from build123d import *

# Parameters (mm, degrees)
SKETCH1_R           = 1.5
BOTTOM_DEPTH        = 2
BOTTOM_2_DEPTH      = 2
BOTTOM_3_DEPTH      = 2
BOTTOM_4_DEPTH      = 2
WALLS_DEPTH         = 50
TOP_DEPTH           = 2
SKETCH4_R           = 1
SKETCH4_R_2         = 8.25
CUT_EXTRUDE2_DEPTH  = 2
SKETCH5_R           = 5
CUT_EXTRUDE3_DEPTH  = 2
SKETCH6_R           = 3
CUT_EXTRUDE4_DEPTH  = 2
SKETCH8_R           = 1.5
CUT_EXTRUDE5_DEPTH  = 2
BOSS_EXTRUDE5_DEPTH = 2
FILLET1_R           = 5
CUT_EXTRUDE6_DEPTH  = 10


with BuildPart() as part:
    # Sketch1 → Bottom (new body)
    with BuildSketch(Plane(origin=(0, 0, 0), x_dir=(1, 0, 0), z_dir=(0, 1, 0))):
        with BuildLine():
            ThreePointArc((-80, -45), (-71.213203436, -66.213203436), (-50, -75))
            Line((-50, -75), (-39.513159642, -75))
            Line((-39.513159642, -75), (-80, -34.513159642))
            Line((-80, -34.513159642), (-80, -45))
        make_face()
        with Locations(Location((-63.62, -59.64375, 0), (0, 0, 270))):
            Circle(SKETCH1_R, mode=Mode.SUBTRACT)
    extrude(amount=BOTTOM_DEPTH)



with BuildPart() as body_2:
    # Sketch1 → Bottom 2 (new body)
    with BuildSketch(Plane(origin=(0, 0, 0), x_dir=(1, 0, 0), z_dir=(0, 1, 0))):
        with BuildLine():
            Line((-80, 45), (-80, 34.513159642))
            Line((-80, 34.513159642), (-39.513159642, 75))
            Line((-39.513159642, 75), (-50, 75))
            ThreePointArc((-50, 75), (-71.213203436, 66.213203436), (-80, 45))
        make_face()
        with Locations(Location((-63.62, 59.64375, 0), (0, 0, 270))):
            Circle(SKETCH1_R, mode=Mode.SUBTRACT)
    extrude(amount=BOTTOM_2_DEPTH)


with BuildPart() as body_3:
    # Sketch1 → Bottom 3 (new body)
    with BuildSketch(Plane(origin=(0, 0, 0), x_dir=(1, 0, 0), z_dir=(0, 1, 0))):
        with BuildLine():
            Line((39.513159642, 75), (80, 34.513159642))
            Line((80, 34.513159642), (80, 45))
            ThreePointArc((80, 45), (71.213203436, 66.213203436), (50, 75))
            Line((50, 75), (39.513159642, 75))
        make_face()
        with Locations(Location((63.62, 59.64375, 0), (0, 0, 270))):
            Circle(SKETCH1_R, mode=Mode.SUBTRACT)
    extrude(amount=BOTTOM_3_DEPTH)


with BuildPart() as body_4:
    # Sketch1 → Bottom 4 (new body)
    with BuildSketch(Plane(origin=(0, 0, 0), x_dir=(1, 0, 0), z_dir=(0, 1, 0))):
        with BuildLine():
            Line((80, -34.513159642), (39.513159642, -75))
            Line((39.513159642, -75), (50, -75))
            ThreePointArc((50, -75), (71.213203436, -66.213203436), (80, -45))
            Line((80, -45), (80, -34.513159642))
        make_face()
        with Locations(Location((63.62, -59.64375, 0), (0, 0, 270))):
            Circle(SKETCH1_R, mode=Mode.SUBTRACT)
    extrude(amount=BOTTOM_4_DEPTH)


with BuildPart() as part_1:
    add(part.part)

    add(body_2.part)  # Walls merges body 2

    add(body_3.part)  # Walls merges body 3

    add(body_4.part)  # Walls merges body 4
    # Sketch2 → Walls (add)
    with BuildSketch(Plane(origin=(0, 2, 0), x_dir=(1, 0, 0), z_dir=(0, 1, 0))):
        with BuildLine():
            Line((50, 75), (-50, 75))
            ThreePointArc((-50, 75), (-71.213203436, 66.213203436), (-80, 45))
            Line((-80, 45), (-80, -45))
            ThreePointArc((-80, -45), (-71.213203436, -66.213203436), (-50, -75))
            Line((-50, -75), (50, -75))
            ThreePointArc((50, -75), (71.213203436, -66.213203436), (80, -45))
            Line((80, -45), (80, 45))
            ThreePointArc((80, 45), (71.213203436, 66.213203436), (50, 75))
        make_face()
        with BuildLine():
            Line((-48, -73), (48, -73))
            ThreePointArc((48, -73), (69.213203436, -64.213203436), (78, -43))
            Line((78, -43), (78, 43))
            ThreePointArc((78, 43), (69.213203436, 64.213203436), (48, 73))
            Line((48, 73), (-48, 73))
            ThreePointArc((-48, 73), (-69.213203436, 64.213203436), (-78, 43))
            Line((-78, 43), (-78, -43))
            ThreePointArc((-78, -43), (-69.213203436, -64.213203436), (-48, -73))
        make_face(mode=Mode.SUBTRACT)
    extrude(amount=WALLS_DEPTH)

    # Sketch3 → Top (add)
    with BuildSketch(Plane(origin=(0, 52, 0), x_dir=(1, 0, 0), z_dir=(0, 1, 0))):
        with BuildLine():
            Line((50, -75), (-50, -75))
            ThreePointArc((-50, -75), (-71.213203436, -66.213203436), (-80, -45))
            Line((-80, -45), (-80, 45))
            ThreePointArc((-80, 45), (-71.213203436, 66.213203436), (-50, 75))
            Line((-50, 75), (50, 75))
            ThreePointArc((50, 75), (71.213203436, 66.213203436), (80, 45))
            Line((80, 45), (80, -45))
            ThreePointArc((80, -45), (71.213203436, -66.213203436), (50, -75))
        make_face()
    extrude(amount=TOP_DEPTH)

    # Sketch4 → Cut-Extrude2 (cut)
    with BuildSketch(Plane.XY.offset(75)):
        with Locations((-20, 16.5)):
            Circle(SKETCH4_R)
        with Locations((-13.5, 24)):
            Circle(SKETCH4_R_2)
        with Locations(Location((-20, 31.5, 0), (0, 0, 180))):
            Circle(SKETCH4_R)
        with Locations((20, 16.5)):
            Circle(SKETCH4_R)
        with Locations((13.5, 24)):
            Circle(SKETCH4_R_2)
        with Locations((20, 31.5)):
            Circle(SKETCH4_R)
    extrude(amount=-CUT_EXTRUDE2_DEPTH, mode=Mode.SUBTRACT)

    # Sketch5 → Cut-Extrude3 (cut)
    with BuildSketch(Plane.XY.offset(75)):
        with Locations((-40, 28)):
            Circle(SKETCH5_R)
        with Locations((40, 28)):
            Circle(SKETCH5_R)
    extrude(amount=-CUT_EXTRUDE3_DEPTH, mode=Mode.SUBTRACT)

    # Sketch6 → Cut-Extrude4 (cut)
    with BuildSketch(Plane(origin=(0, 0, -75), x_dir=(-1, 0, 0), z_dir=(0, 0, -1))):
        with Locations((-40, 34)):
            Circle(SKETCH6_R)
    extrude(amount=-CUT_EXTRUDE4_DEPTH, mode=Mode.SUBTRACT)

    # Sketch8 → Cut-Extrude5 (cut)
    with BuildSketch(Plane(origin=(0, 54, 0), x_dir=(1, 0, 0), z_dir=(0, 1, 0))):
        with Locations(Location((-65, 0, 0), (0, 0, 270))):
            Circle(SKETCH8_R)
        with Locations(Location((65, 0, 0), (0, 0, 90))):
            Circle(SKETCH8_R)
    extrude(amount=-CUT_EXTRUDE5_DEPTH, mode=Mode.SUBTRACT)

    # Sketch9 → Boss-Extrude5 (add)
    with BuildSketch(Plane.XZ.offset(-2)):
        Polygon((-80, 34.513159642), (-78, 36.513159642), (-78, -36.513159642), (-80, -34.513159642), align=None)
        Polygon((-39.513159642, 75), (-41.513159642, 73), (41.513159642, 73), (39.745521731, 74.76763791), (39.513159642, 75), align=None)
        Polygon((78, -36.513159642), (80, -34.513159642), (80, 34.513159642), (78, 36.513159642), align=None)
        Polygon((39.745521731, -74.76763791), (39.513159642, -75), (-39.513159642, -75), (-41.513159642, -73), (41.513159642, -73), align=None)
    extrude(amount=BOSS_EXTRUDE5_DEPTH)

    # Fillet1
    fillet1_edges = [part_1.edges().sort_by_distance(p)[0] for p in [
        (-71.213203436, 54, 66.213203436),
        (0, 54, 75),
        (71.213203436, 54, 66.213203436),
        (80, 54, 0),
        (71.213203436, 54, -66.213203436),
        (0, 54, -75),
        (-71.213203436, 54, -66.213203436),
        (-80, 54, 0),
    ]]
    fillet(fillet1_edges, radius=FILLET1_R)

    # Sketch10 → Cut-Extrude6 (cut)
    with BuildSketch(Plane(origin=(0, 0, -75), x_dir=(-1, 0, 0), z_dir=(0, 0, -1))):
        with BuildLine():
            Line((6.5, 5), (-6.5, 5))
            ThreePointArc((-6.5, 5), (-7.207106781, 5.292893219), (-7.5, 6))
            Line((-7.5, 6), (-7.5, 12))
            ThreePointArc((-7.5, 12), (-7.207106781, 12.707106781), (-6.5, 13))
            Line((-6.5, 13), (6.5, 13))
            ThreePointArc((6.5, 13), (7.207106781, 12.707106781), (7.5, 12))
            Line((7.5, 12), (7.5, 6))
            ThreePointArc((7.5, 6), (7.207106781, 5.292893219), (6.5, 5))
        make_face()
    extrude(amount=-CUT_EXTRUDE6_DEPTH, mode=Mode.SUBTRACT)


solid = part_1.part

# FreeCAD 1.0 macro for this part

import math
import FreeCAD as App
import Part
import Sketcher

V = App.Vector
Q = App.Units.Quantity


def edges_at(feature, points):
    """Names of the edges that pass closest to the given points."""
    edges = feature.Shape.Edges
    near = lambda p: min(range(len(edges)), key=lambda i: edges[i].distToShape(Part.Vertex(*p))[0])
    return sorted({f"Edge{near(p) + 1}" for p in points})

doc = App.newDocument("Part")
body = doc.addObject("PartDesign::Body", "Body")

sketch1 = body.newObject("Sketcher::SketchObject", "Sketch")
sketch1.AttachmentSupport = (doc.getObject("XZ_Plane"), [""])
sketch1.MapMode = "FlatFace"
sketch1.addGeometry([
    Part.ArcOfCircle(Part.Circle(V(-50, 45, 0), V(0, 0, 1), 30), math.radians(90), math.radians(180)),
    Part.LineSegment(V(-50, 75, 0), V(-39.51316, 75, 0)),
    Part.LineSegment(V(-39.51316, 75, 0), V(-80, 34.51316, 0)),
    Part.LineSegment(V(-80, 34.51316, 0), V(-80, 45, 0)),
    Part.Circle(V(-63.62, 59.64375, 0), V(0, 0, 1), 1.5),
], False)
sketch1.addConstraint([
    Sketcher.Constraint("Tangent", 0, 1, 1, 1),
    Sketcher.Constraint("Coincident", 1, 2, 2, 1),
    Sketcher.Constraint("Coincident", 2, 2, 3, 1),
    Sketcher.Constraint("Tangent", 3, 2, 0, 2),
    Sketcher.Constraint("Horizontal", 1),
    Sketcher.Constraint("Vertical", 3),
    Sketcher.Constraint("Equal", 1, 3),
    Sketcher.Constraint("Diameter", 4, Q("3 mm")),
    Sketcher.Constraint("Radius", 0, Q("30 mm")),
    Sketcher.Constraint("DistanceX", 0, 3, -1, 1, Q("50 mm")),
    Sketcher.Constraint("DistanceY", -1, 1, 0, 3, Q("45 mm")),
    Sketcher.Constraint("DistanceX", 4, 3, -1, 1, Q("63.62 mm")),
    Sketcher.Constraint("DistanceX", 1, 1, 1, 2, Q("10.48684 mm")),
    Sketcher.Constraint("DistanceY", -1, 1, 4, 3, Q("59.64375 mm")),
])
pad1 = body.newObject("PartDesign::Pad", "Pad")
pad1.Profile = sketch1
pad1.Length = 2
pad1.Reversed = True
body2 = doc.addObject("PartDesign::Body", "Body001")

sketch2 = body2.newObject("Sketcher::SketchObject", "Sketch001")
sketch2.AttachmentSupport = (doc.getObject("XZ_Plane001"), [""])
sketch2.MapMode = "FlatFace"
sketch2.addGeometry([
    Part.LineSegment(V(-80, -45, 0), V(-80, -34.51316, 0)),
    Part.LineSegment(V(-80, -34.51316, 0), V(-39.51316, -75, 0)),
    Part.LineSegment(V(-39.51316, -75, 0), V(-50, -75, 0)),
    Part.ArcOfCircle(Part.Circle(V(-50, -45, 0), V(0, 0, 1), 30), math.radians(180), math.radians(270)),
    Part.Circle(V(-63.62, -59.64375, 0), V(0, 0, 1), 1.5),
], False)
sketch2.addConstraint([
    Sketcher.Constraint("Coincident", 0, 2, 1, 1),
    Sketcher.Constraint("Coincident", 1, 2, 2, 1),
    Sketcher.Constraint("Tangent", 2, 2, 3, 2),
    Sketcher.Constraint("Tangent", 3, 1, 0, 1),
    Sketcher.Constraint("Vertical", 0),
    Sketcher.Constraint("Horizontal", 2),
    Sketcher.Constraint("Equal", 2, 0),
    Sketcher.Constraint("Diameter", 4, Q("3 mm")),
    Sketcher.Constraint("Radius", 3, Q("30 mm")),
    Sketcher.Constraint("DistanceX", 3, 3, -1, 1, Q("50 mm")),
    Sketcher.Constraint("DistanceY", 3, 3, -1, 1, Q("45 mm")),
    Sketcher.Constraint("DistanceX", 4, 3, -1, 1, Q("63.62 mm")),
    Sketcher.Constraint("DistanceX", 2, 2, 2, 1, Q("10.48684 mm")),
    Sketcher.Constraint("DistanceY", 4, 3, -1, 1, Q("59.64375 mm")),
])
pad2 = body2.newObject("PartDesign::Pad", "Pad001")
pad2.Profile = sketch2
pad2.Length = 2
pad2.Reversed = True
body3 = doc.addObject("PartDesign::Body", "Body002")

sketch3 = body3.newObject("Sketcher::SketchObject", "Sketch002")
sketch3.AttachmentSupport = (doc.getObject("XZ_Plane002"), [""])
sketch3.MapMode = "FlatFace"
sketch3.addGeometry([
    Part.LineSegment(V(39.51316, -75, 0), V(80, -34.51316, 0)),
    Part.LineSegment(V(80, -34.51316, 0), V(80, -45, 0)),
    Part.ArcOfCircle(Part.Circle(V(50, -45, 0), V(0, 0, 1), 30), math.radians(-90), math.radians(0)),
    Part.LineSegment(V(50, -75, 0), V(39.51316, -75, 0)),
    Part.Circle(V(63.62, -59.64375, 0), V(0, 0, 1), 1.5),
], False)
sketch3.addConstraint([
    Sketcher.Constraint("Coincident", 0, 2, 1, 1),
    Sketcher.Constraint("Tangent", 1, 2, 2, 2),
    Sketcher.Constraint("Tangent", 2, 1, 3, 1),
    Sketcher.Constraint("Coincident", 3, 2, 0, 1),
    Sketcher.Constraint("Vertical", 1),
    Sketcher.Constraint("Horizontal", 3),
    Sketcher.Constraint("Equal", 3, 1),
    Sketcher.Constraint("Diameter", 4, Q("3 mm")),
    Sketcher.Constraint("Radius", 2, Q("30 mm")),
    Sketcher.Constraint("DistanceX", -1, 1, 2, 3, Q("50 mm")),
    Sketcher.Constraint("DistanceY", 2, 3, -1, 1, Q("45 mm")),
    Sketcher.Constraint("DistanceX", -1, 1, 4, 3, Q("63.62 mm")),
    Sketcher.Constraint("DistanceX", 3, 2, 3, 1, Q("10.48684 mm")),
    Sketcher.Constraint("DistanceY", 4, 3, -1, 1, Q("59.64375 mm")),
])
pad3 = body3.newObject("PartDesign::Pad", "Pad002")
pad3.Profile = sketch3
pad3.Length = 2
pad3.Reversed = True
body4 = doc.addObject("PartDesign::Body", "Body003")

sketch4 = body4.newObject("Sketcher::SketchObject", "Sketch003")
sketch4.AttachmentSupport = (doc.getObject("XZ_Plane003"), [""])
sketch4.MapMode = "FlatFace"
sketch4.addGeometry([
    Part.LineSegment(V(80, 34.51316, 0), V(39.51316, 75, 0)),
    Part.LineSegment(V(39.51316, 75, 0), V(50, 75, 0)),
    Part.ArcOfCircle(Part.Circle(V(50, 45, 0), V(0, 0, 1), 30), math.radians(0), math.radians(90)),
    Part.LineSegment(V(80, 45, 0), V(80, 34.51316, 0)),
    Part.Circle(V(63.62, 59.64375, 0), V(0, 0, 1), 1.5),
], False)
sketch4.addConstraint([
    Sketcher.Constraint("Coincident", 0, 2, 1, 1),
    Sketcher.Constraint("Tangent", 1, 2, 2, 2),
    Sketcher.Constraint("Tangent", 2, 1, 3, 1),
    Sketcher.Constraint("Coincident", 3, 2, 0, 1),
    Sketcher.Constraint("Horizontal", 1),
    Sketcher.Constraint("Vertical", 3),
    Sketcher.Constraint("Equal", 1, 3),
    Sketcher.Constraint("Diameter", 4, Q("3 mm")),
    Sketcher.Constraint("Radius", 2, Q("30 mm")),
    Sketcher.Constraint("DistanceX", -1, 1, 2, 3, Q("50 mm")),
    Sketcher.Constraint("DistanceY", -1, 1, 2, 3, Q("45 mm")),
    Sketcher.Constraint("DistanceX", -1, 1, 4, 3, Q("63.62 mm")),
    Sketcher.Constraint("DistanceX", 1, 1, 1, 2, Q("10.48684 mm")),
    Sketcher.Constraint("DistanceY", -1, 1, 4, 3, Q("59.64375 mm")),
])
pad4 = body4.newObject("PartDesign::Pad", "Pad003")
pad4.Profile = sketch4
pad4.Length = 2
pad4.Reversed = True
body.AllowCompound = True
doc.recompute()

boolean = body.newObject("PartDesign::Boolean", "Boolean")
boolean.Type = "Fuse"
boolean.addObjects([body2])
doc.recompute()

boolean2 = body.newObject("PartDesign::Boolean", "Boolean001")
boolean2.Type = "Fuse"
boolean2.addObjects([body3])
doc.recompute()

boolean3 = body.newObject("PartDesign::Boolean", "Boolean002")
boolean3.Type = "Fuse"
boolean3.addObjects([body4])

sketch5 = body.newObject("Sketcher::SketchObject", "Sketch004")
sketch5.AttachmentSupport = (doc.getObject("XZ_Plane"), [""])
sketch5.MapMode = "FlatFace"
sketch5.AttachmentOffset = App.Placement(V(0, 0, -2), App.Rotation())
sketch5.addGeometry([
    Part.LineSegment(V(50, -75, 0), V(-50, -75, 0)),
    Part.ArcOfCircle(Part.Circle(V(-50, -45, 0), V(0, 0, 1), 30), math.radians(180), math.radians(270)),
    Part.LineSegment(V(-80, -45, 0), V(-80, 45, 0)),
    Part.ArcOfCircle(Part.Circle(V(-50, 45, 0), V(0, 0, 1), 30), math.radians(90), math.radians(180)),
    Part.LineSegment(V(-50, 75, 0), V(50, 75, 0)),
    Part.ArcOfCircle(Part.Circle(V(50, 45, 0), V(0, 0, 1), 30), math.radians(0), math.radians(90)),
    Part.LineSegment(V(80, 45, 0), V(80, -45, 0)),
    Part.ArcOfCircle(Part.Circle(V(50, -45, 0), V(0, 0, 1), 30), math.radians(-90), math.radians(0)),
    Part.LineSegment(V(48, 73, 0), V(-48, 73, 0)),
    Part.ArcOfCircle(Part.Circle(V(-48, 43, 0), V(0, 0, 1), 30), math.radians(90), math.radians(180)),
    Part.LineSegment(V(-78, 43, 0), V(-78, -43, 0)),
    Part.ArcOfCircle(Part.Circle(V(-48, -43, 0), V(0, 0, 1), 30), math.radians(180), math.radians(270)),
    Part.LineSegment(V(-48, -73, 0), V(48, -73, 0)),
    Part.ArcOfCircle(Part.Circle(V(48, -43, 0), V(0, 0, 1), 30), math.radians(-90), math.radians(0)),
    Part.LineSegment(V(78, -43, 0), V(78, 43, 0)),
    Part.ArcOfCircle(Part.Circle(V(48, 43, 0), V(0, 0, 1), 30), math.radians(0), math.radians(90)),
], False)
sketch5.addConstraint([
    Sketcher.Constraint("Tangent", 0, 2, 1, 2),
    Sketcher.Constraint("Tangent", 1, 1, 2, 1),
    Sketcher.Constraint("Tangent", 2, 2, 3, 2),
    Sketcher.Constraint("Tangent", 3, 1, 4, 1),
    Sketcher.Constraint("Tangent", 4, 2, 5, 2),
    Sketcher.Constraint("Tangent", 5, 1, 6, 1),
    Sketcher.Constraint("Tangent", 6, 2, 7, 2),
    Sketcher.Constraint("Tangent", 7, 1, 0, 1),
    Sketcher.Constraint("Tangent", 8, 2, 9, 1),
    Sketcher.Constraint("Tangent", 9, 2, 10, 1),
    Sketcher.Constraint("Tangent", 10, 2, 11, 1),
    Sketcher.Constraint("Tangent", 11, 2, 12, 1),
    Sketcher.Constraint("Tangent", 12, 2, 13, 1),
    Sketcher.Constraint("Tangent", 13, 2, 14, 1),
    Sketcher.Constraint("Tangent", 14, 2, 15, 1),
    Sketcher.Constraint("Tangent", 15, 2, 8, 1),
    Sketcher.Constraint("Horizontal", 0),
    Sketcher.Constraint("Vertical", 2),
    Sketcher.Constraint("Horizontal", 4),
    Sketcher.Constraint("Vertical", 6),
    Sketcher.Constraint("Horizontal", 8),
    Sketcher.Constraint("Vertical", 10),
    Sketcher.Constraint("Horizontal", 12),
    Sketcher.Constraint("Vertical", 14),
    Sketcher.Constraint("Equal", 1, 3),
    Sketcher.Constraint("Equal", 3, 5),
    Sketcher.Constraint("Equal", 5, 7),
    Sketcher.Constraint("Equal", 7, 9),
    Sketcher.Constraint("Equal", 9, 11),
    Sketcher.Constraint("Equal", 11, 13),
    Sketcher.Constraint("Equal", 13, 15),
    Sketcher.Constraint("Symmetric", 1, 3, 5, 3, -1, 1),
    Sketcher.Constraint("Symmetric", 9, 3, 13, 3, -1, 1),
    Sketcher.Constraint("Radius", 1, Q("30 mm")),
    Sketcher.Constraint("DistanceX", 0, 2, 0, 1, Q("100 mm")),
    Sketcher.Constraint("DistanceX", 8, 2, 8, 1, Q("96 mm")),
    Sketcher.Constraint("DistanceY", 2, 1, 2, 2, Q("90 mm")),
    Sketcher.Constraint("DistanceY", 10, 2, 10, 1, Q("86 mm")),
])
pad5 = body.newObject("PartDesign::Pad", "Pad004")
pad5.Profile = sketch5
pad5.Length = 50
pad5.Reversed = True

sketch6 = body.newObject("Sketcher::SketchObject", "Sketch005")
sketch6.AttachmentSupport = (doc.getObject("XZ_Plane"), [""])
sketch6.MapMode = "FlatFace"
sketch6.AttachmentOffset = App.Placement(V(0, 0, -52), App.Rotation())
sketch6.addGeometry([
    Part.LineSegment(V(-50, 75, 0), V(50, 75, 0)),
    Part.ArcOfCircle(Part.Circle(V(50, 45, 0), V(0, 0, 1), 30), math.radians(0), math.radians(90)),
    Part.LineSegment(V(80, 45, 0), V(80, -45, 0)),
    Part.ArcOfCircle(Part.Circle(V(50, -45, 0), V(0, 0, 1), 30), math.radians(-90), math.radians(0)),
    Part.LineSegment(V(50, -75, 0), V(-50, -75, 0)),
    Part.ArcOfCircle(Part.Circle(V(-50, -45, 0), V(0, 0, 1), 30), math.radians(180), math.radians(270)),
    Part.LineSegment(V(-80, -45, 0), V(-80, 45, 0)),
    Part.ArcOfCircle(Part.Circle(V(-50, 45, 0), V(0, 0, 1), 30), math.radians(90), math.radians(180)),
], False)
sketch6.addConstraint([
    Sketcher.Constraint("Tangent", 0, 2, 1, 2),
    Sketcher.Constraint("Tangent", 1, 1, 2, 1),
    Sketcher.Constraint("Tangent", 2, 2, 3, 2),
    Sketcher.Constraint("Tangent", 3, 1, 4, 1),
    Sketcher.Constraint("Tangent", 4, 2, 5, 2),
    Sketcher.Constraint("Tangent", 5, 1, 6, 1),
    Sketcher.Constraint("Tangent", 6, 2, 7, 2),
    Sketcher.Constraint("Tangent", 7, 1, 0, 1),
    Sketcher.Constraint("Horizontal", 0),
    Sketcher.Constraint("Vertical", 2),
    Sketcher.Constraint("Horizontal", 4),
    Sketcher.Constraint("Vertical", 6),
    Sketcher.Constraint("Equal", 1, 3),
    Sketcher.Constraint("Equal", 3, 5),
    Sketcher.Constraint("Equal", 5, 7),
    Sketcher.Constraint("Symmetric", 1, 3, 5, 3, -1, 1),
    Sketcher.Constraint("Radius", 1, Q("30 mm")),
    Sketcher.Constraint("DistanceX", 0, 1, 0, 2, Q("100 mm")),
    Sketcher.Constraint("DistanceY", 2, 2, 2, 1, Q("90 mm")),
])
pad6 = body.newObject("PartDesign::Pad", "Pad005")
pad6.Profile = sketch6
pad6.Length = 2
pad6.Reversed = True

sketch7 = body.newObject("Sketcher::SketchObject", "Sketch006")
sketch7.AttachmentSupport = (doc.getObject("XY_Plane"), [""])
sketch7.MapMode = "FlatFace"
sketch7.AttachmentOffset = App.Placement(V(0, 0, 75), App.Rotation())
sketch7.addGeometry([
    Part.Circle(V(-20, 16.5, 0), V(0, 0, 1), 1),
    Part.Circle(V(-13.5, 24, 0), V(0, 0, 1), 8.25),
    Part.Circle(V(-20, 31.5, 0), V(0, 0, 1), 1),
    Part.Circle(V(20, 16.5, 0), V(0, 0, 1), 1),
    Part.Circle(V(13.5, 24, 0), V(0, 0, 1), 8.25),
    Part.Circle(V(20, 31.5, 0), V(0, 0, 1), 1),
], False)
sketch7.addConstraint([
    Sketcher.Constraint("Equal", 0, 2),
    Sketcher.Constraint("Equal", 2, 3),
    Sketcher.Constraint("Equal", 1, 4),
    Sketcher.Constraint("Equal", 3, 5),
    Sketcher.Constraint("Symmetric", 0, 3, 3, 3, -2),
    Sketcher.Constraint("Symmetric", 1, 3, 4, 3, -2),
    Sketcher.Constraint("Symmetric", 2, 3, 5, 3, -2),
    Sketcher.Constraint("Vertical", 0, 3, 2, 3),
    Sketcher.Constraint("Diameter", 0, Q("2 mm")),
    Sketcher.Constraint("Diameter", 1, Q("16.5 mm")),
    Sketcher.Constraint("DistanceX", 0, 3, -1, 1, Q("20 mm")),
    Sketcher.Constraint("DistanceY", -1, 1, 1, 3, Q("24 mm")),
    Sketcher.Constraint("DistanceY", 0, 3, 2, 3, Q("15 mm")),
    Sketcher.Constraint("DistanceX", 1, 3, 4, 3, Q("27 mm")),
    Sketcher.Constraint("DistanceY", -1, 1, 0, 3, Q("16.5 mm")),
])
pocket1 = body.newObject("PartDesign::Pocket", "Pocket")
pocket1.Profile = sketch7
pocket1.Length = 2

sketch8 = body.newObject("Sketcher::SketchObject", "Sketch007")
sketch8.AttachmentSupport = (doc.getObject("XY_Plane"), [""])
sketch8.MapMode = "FlatFace"
sketch8.AttachmentOffset = App.Placement(V(0, 0, 75), App.Rotation())
sketch8.addGeometry([
    Part.Circle(V(-40, 28, 0), V(0, 0, 1), 5),
    Part.Circle(V(40, 28, 0), V(0, 0, 1), 5),
], False)
sketch8.addConstraint([
    Sketcher.Constraint("Equal", 0, 1),
    Sketcher.Constraint("Symmetric", 0, 3, 1, 3, -2),
    Sketcher.Constraint("Diameter", 0, Q("10 mm")),
    Sketcher.Constraint("DistanceX", 0, 3, -1, 1, Q("40 mm")),
    Sketcher.Constraint("DistanceY", -1, 1, 0, 3, Q("28 mm")),
])
pocket2 = body.newObject("PartDesign::Pocket", "Pocket001")
pocket2.Profile = sketch8
pocket2.Length = 2

sketch9 = body.newObject("Sketcher::SketchObject", "Sketch008")
sketch9.AttachmentSupport = (doc.getObject("XY_Plane"), [""])
sketch9.MapMode = "FlatFace"
sketch9.AttachmentOffset = App.Placement(V(0, 0, -75), App.Rotation())
sketch9.addGeometry(Part.Circle(V(40, 34, 0), V(0, 0, 1), 3), False)
sketch9.addConstraint([
    Sketcher.Constraint("Diameter", 0, Q("6 mm")),
    Sketcher.Constraint("DistanceX", -1, 1, 0, 3, Q("40 mm")),
    Sketcher.Constraint("DistanceY", -1, 1, 0, 3, Q("34 mm")),
])
pocket3 = body.newObject("PartDesign::Pocket", "Pocket002")
pocket3.Profile = sketch9
pocket3.Length = 2
pocket3.Reversed = True

sketch10 = body.newObject("Sketcher::SketchObject", "Sketch009")
sketch10.AttachmentSupport = (doc.getObject("XZ_Plane"), [""])
sketch10.MapMode = "FlatFace"
sketch10.AttachmentOffset = App.Placement(V(0, 0, -54), App.Rotation())
sketch10.addGeometry([
    Part.Circle(V(-65, 0, 0), V(0, 0, 1), 1.5),
    Part.Circle(V(65, 0, 0), V(0, 0, 1), 1.5),
], False)
sketch10.addConstraint([
    Sketcher.Constraint("Equal", 0, 1),
    Sketcher.Constraint("Symmetric", 0, 3, 1, 3, -1, 1),
    Sketcher.Constraint("PointOnObject", 0, 3, -1),
    Sketcher.Constraint("Diameter", 0, Q("3 mm")),
    Sketcher.Constraint("DistanceX", 0, 3, -1, 1, Q("65 mm")),
])
pocket4 = body.newObject("PartDesign::Pocket", "Pocket003")
pocket4.Profile = sketch10
pocket4.Length = 2
pocket4.Reversed = True

sketch11 = body.newObject("Sketcher::SketchObject", "Sketch010")
sketch11.AttachmentSupport = (doc.getObject("XZ_Plane"), [""])
sketch11.MapMode = "FlatFace"
sketch11.AttachmentOffset = App.Placement(V(0, 0, -2), App.Rotation())
sketch11.addGeometry([
    Part.LineSegment(V(-78, 36.51316, 0), V(-80, 34.51316, 0)),
    Part.LineSegment(V(-80, 34.51316, 0), V(-80, -34.51316, 0)),
    Part.LineSegment(V(-80, -34.51316, 0), V(-78, -36.51316, 0)),
    Part.LineSegment(V(-78, -36.51316, 0), V(-78, 36.51316, 0)),
    Part.LineSegment(V(-39.51316, 75, 0), V(-41.51316, 73, 0)),
    Part.LineSegment(V(-41.51316, 73, 0), V(41.51316, 73, 0)),
    Part.LineSegment(V(41.51316, 73, 0), V(39.745522, 74.767638, 0)),
    Part.LineSegment(V(39.745522, 74.767638, 0), V(39.51316, 75, 0)),
    Part.LineSegment(V(39.51316, 75, 0), V(-39.51316, 75, 0)),
    Part.LineSegment(V(78, -36.51316, 0), V(80, -34.51316, 0)),
    Part.LineSegment(V(80, -34.51316, 0), V(80, 34.51316, 0)),
    Part.LineSegment(V(80, 34.51316, 0), V(78, 36.51316, 0)),
    Part.LineSegment(V(78, 36.51316, 0), V(78, -36.51316, 0)),
    Part.LineSegment(V(39.51316, -75, 0), V(39.745522, -74.767638, 0)),
    Part.LineSegment(V(39.745522, -74.767638, 0), V(41.51316, -73, 0)),
    Part.LineSegment(V(41.51316, -73, 0), V(-41.51316, -73, 0)),
    Part.LineSegment(V(-41.51316, -73, 0), V(-39.51316, -75, 0)),
    Part.LineSegment(V(-39.51316, -75, 0), V(39.51316, -75, 0)),
], False)
sketch11.addConstraint([
    Sketcher.Constraint("Coincident", 0, 2, 1, 1),
    Sketcher.Constraint("Coincident", 1, 2, 2, 1),
    Sketcher.Constraint("Coincident", 2, 2, 3, 1),
    Sketcher.Constraint("Coincident", 3, 2, 0, 1),
    Sketcher.Constraint("Coincident", 4, 2, 5, 1),
    Sketcher.Constraint("Coincident", 5, 2, 6, 1),
    Sketcher.Constraint("Coincident", 6, 2, 7, 1),
    Sketcher.Constraint("Coincident", 7, 2, 8, 1),
    Sketcher.Constraint("Coincident", 8, 2, 4, 1),
    Sketcher.Constraint("Coincident", 9, 2, 10, 1),
    Sketcher.Constraint("Coincident", 10, 2, 11, 1),
    Sketcher.Constraint("Coincident", 11, 2, 12, 1),
    Sketcher.Constraint("Coincident", 12, 2, 9, 1),
    Sketcher.Constraint("Coincident", 13, 2, 14, 1),
    Sketcher.Constraint("Coincident", 14, 2, 15, 1),
    Sketcher.Constraint("Coincident", 15, 2, 16, 1),
    Sketcher.Constraint("Coincident", 16, 2, 17, 1),
    Sketcher.Constraint("Coincident", 17, 2, 13, 1),
    Sketcher.Constraint("Vertical", 1),
    Sketcher.Constraint("Vertical", 3),
    Sketcher.Constraint("Horizontal", 5),
    Sketcher.Constraint("Horizontal", 8),
    Sketcher.Constraint("Vertical", 10),
    Sketcher.Constraint("Vertical", 12),
    Sketcher.Constraint("Horizontal", 15),
    Sketcher.Constraint("Horizontal", 17),
    Sketcher.Constraint("Symmetric", 0, 2, 9, 2, -1, 1),
    Sketcher.Constraint("Symmetric", 2, 2, 11, 2, -1, 1),
    Sketcher.Constraint("Symmetric", 4, 2, 14, 2, -1, 1),
    Sketcher.Constraint("Symmetric", 7, 2, 16, 2, -1, 1),
    Sketcher.Constraint("Symmetric", 6, 2, 13, 2, -1),
    Sketcher.Constraint("Perpendicular", 0, 2),
    Sketcher.Constraint("Perpendicular", 2, 4),
    Sketcher.Constraint("Perpendicular", 4, 6),
    Sketcher.Constraint("Parallel", 6, 7),
    Sketcher.Constraint("Perpendicular", 7, 9),
    Sketcher.Constraint("Perpendicular", 9, 11),
    Sketcher.Constraint("Perpendicular", 11, 13),
    Sketcher.Constraint("Parallel", 13, 14),
    Sketcher.Constraint("Perpendicular", 14, 16),
    Sketcher.Constraint("Horizontal", 1, 2, 9, 2),
    Sketcher.Constraint("Horizontal", 3, 2, 11, 2),
    Sketcher.Constraint("Equal", 2, 4),
    Sketcher.Constraint("DistanceX", 0, 2, -1, 1, Q("80 mm")),
    Sketcher.Constraint("DistanceX", 2, 2, -1, 1, Q("78 mm")),
    Sketcher.Constraint("DistanceY", -1, 1, 4, 2, Q("73 mm")),
    Sketcher.Constraint("DistanceX", 5, 1, 5, 2, Q("83.026319 mm")),
    Sketcher.Constraint("DistanceY", 1, 2, 1, 1, Q("69.026319 mm")),
    Sketcher.Constraint("Distance", 7, Q("0.32861 mm")),
])
pad7 = body.newObject("PartDesign::Pad", "Pad006")
pad7.Profile = sketch11
pad7.Length = 2
doc.recompute()

fillet = body.newObject("PartDesign::Fillet", "Fillet")
fillet.Base = (pad7, edges_at(pad7, [
    (-71.213, 54, 66.213),
    (0, 54, 75),
    (71.213, 54, 66.213),
    (80, 54, 0),
    (71.213, 54, -66.213),
    (0, 54, -75),
    (-71.213, 54, -66.213),
    (-80, 54, 0),
]))
fillet.Radius = 5

sketch12 = body.newObject("Sketcher::SketchObject", "Sketch011")
sketch12.AttachmentSupport = (doc.getObject("XY_Plane"), [""])
sketch12.MapMode = "FlatFace"
sketch12.AttachmentOffset = App.Placement(V(0, 0, -75), App.Rotation())
sketch12.addGeometry([
    Part.LineSegment(V(6.5, 5, 0), V(-6.5, 5, 0)),
    Part.ArcOfCircle(Part.Circle(V(-6.5, 6, 0), V(0, 0, 1), 1), math.radians(-180), math.radians(-90)),
    Part.LineSegment(V(-7.5, 6, 0), V(-7.5, 12, 0)),
    Part.ArcOfCircle(Part.Circle(V(-6.5, 12, 0), V(0, 0, 1), 1), math.radians(90), math.radians(180)),
    Part.LineSegment(V(-6.5, 13, 0), V(6.5, 13, 0)),
    Part.ArcOfCircle(Part.Circle(V(6.5, 12, 0), V(0, 0, 1), 1), math.radians(0), math.radians(90)),
    Part.LineSegment(V(7.5, 12, 0), V(7.5, 6, 0)),
    Part.ArcOfCircle(Part.Circle(V(6.5, 6, 0), V(0, 0, 1), 1), math.radians(-90), math.radians(0)),
], False)
sketch12.addConstraint([
    Sketcher.Constraint("Tangent", 0, 2, 1, 2),
    Sketcher.Constraint("Tangent", 1, 1, 2, 1),
    Sketcher.Constraint("Tangent", 2, 2, 3, 2),
    Sketcher.Constraint("Tangent", 3, 1, 4, 1),
    Sketcher.Constraint("Tangent", 4, 2, 5, 2),
    Sketcher.Constraint("Tangent", 5, 1, 6, 1),
    Sketcher.Constraint("Tangent", 6, 2, 7, 2),
    Sketcher.Constraint("Tangent", 7, 1, 0, 1),
    Sketcher.Constraint("Horizontal", 0),
    Sketcher.Constraint("Vertical", 2),
    Sketcher.Constraint("Horizontal", 4),
    Sketcher.Constraint("Vertical", 6),
    Sketcher.Constraint("Equal", 1, 3),
    Sketcher.Constraint("Equal", 3, 5),
    Sketcher.Constraint("Equal", 5, 7),
    Sketcher.Constraint("Radius", 1, Q("1 mm")),
    Sketcher.Constraint("DistanceX", 0, 2, 0, 1, Q("13 mm")),
    Sketcher.Constraint("DistanceY", 2, 1, 2, 2, Q("6 mm")),
    Sketcher.Constraint("DistanceY", -1, 1, 1, 3, Q("6 mm")),
    Sketcher.Constraint("DistanceX", 1, 3, -1, 1, Q("6.5 mm")),
])
pocket5 = body.newObject("PartDesign::Pocket", "Pocket004")
pocket5.Profile = sketch12
pocket5.Length = 10
pocket5.Reversed = True

doc.recompute()
